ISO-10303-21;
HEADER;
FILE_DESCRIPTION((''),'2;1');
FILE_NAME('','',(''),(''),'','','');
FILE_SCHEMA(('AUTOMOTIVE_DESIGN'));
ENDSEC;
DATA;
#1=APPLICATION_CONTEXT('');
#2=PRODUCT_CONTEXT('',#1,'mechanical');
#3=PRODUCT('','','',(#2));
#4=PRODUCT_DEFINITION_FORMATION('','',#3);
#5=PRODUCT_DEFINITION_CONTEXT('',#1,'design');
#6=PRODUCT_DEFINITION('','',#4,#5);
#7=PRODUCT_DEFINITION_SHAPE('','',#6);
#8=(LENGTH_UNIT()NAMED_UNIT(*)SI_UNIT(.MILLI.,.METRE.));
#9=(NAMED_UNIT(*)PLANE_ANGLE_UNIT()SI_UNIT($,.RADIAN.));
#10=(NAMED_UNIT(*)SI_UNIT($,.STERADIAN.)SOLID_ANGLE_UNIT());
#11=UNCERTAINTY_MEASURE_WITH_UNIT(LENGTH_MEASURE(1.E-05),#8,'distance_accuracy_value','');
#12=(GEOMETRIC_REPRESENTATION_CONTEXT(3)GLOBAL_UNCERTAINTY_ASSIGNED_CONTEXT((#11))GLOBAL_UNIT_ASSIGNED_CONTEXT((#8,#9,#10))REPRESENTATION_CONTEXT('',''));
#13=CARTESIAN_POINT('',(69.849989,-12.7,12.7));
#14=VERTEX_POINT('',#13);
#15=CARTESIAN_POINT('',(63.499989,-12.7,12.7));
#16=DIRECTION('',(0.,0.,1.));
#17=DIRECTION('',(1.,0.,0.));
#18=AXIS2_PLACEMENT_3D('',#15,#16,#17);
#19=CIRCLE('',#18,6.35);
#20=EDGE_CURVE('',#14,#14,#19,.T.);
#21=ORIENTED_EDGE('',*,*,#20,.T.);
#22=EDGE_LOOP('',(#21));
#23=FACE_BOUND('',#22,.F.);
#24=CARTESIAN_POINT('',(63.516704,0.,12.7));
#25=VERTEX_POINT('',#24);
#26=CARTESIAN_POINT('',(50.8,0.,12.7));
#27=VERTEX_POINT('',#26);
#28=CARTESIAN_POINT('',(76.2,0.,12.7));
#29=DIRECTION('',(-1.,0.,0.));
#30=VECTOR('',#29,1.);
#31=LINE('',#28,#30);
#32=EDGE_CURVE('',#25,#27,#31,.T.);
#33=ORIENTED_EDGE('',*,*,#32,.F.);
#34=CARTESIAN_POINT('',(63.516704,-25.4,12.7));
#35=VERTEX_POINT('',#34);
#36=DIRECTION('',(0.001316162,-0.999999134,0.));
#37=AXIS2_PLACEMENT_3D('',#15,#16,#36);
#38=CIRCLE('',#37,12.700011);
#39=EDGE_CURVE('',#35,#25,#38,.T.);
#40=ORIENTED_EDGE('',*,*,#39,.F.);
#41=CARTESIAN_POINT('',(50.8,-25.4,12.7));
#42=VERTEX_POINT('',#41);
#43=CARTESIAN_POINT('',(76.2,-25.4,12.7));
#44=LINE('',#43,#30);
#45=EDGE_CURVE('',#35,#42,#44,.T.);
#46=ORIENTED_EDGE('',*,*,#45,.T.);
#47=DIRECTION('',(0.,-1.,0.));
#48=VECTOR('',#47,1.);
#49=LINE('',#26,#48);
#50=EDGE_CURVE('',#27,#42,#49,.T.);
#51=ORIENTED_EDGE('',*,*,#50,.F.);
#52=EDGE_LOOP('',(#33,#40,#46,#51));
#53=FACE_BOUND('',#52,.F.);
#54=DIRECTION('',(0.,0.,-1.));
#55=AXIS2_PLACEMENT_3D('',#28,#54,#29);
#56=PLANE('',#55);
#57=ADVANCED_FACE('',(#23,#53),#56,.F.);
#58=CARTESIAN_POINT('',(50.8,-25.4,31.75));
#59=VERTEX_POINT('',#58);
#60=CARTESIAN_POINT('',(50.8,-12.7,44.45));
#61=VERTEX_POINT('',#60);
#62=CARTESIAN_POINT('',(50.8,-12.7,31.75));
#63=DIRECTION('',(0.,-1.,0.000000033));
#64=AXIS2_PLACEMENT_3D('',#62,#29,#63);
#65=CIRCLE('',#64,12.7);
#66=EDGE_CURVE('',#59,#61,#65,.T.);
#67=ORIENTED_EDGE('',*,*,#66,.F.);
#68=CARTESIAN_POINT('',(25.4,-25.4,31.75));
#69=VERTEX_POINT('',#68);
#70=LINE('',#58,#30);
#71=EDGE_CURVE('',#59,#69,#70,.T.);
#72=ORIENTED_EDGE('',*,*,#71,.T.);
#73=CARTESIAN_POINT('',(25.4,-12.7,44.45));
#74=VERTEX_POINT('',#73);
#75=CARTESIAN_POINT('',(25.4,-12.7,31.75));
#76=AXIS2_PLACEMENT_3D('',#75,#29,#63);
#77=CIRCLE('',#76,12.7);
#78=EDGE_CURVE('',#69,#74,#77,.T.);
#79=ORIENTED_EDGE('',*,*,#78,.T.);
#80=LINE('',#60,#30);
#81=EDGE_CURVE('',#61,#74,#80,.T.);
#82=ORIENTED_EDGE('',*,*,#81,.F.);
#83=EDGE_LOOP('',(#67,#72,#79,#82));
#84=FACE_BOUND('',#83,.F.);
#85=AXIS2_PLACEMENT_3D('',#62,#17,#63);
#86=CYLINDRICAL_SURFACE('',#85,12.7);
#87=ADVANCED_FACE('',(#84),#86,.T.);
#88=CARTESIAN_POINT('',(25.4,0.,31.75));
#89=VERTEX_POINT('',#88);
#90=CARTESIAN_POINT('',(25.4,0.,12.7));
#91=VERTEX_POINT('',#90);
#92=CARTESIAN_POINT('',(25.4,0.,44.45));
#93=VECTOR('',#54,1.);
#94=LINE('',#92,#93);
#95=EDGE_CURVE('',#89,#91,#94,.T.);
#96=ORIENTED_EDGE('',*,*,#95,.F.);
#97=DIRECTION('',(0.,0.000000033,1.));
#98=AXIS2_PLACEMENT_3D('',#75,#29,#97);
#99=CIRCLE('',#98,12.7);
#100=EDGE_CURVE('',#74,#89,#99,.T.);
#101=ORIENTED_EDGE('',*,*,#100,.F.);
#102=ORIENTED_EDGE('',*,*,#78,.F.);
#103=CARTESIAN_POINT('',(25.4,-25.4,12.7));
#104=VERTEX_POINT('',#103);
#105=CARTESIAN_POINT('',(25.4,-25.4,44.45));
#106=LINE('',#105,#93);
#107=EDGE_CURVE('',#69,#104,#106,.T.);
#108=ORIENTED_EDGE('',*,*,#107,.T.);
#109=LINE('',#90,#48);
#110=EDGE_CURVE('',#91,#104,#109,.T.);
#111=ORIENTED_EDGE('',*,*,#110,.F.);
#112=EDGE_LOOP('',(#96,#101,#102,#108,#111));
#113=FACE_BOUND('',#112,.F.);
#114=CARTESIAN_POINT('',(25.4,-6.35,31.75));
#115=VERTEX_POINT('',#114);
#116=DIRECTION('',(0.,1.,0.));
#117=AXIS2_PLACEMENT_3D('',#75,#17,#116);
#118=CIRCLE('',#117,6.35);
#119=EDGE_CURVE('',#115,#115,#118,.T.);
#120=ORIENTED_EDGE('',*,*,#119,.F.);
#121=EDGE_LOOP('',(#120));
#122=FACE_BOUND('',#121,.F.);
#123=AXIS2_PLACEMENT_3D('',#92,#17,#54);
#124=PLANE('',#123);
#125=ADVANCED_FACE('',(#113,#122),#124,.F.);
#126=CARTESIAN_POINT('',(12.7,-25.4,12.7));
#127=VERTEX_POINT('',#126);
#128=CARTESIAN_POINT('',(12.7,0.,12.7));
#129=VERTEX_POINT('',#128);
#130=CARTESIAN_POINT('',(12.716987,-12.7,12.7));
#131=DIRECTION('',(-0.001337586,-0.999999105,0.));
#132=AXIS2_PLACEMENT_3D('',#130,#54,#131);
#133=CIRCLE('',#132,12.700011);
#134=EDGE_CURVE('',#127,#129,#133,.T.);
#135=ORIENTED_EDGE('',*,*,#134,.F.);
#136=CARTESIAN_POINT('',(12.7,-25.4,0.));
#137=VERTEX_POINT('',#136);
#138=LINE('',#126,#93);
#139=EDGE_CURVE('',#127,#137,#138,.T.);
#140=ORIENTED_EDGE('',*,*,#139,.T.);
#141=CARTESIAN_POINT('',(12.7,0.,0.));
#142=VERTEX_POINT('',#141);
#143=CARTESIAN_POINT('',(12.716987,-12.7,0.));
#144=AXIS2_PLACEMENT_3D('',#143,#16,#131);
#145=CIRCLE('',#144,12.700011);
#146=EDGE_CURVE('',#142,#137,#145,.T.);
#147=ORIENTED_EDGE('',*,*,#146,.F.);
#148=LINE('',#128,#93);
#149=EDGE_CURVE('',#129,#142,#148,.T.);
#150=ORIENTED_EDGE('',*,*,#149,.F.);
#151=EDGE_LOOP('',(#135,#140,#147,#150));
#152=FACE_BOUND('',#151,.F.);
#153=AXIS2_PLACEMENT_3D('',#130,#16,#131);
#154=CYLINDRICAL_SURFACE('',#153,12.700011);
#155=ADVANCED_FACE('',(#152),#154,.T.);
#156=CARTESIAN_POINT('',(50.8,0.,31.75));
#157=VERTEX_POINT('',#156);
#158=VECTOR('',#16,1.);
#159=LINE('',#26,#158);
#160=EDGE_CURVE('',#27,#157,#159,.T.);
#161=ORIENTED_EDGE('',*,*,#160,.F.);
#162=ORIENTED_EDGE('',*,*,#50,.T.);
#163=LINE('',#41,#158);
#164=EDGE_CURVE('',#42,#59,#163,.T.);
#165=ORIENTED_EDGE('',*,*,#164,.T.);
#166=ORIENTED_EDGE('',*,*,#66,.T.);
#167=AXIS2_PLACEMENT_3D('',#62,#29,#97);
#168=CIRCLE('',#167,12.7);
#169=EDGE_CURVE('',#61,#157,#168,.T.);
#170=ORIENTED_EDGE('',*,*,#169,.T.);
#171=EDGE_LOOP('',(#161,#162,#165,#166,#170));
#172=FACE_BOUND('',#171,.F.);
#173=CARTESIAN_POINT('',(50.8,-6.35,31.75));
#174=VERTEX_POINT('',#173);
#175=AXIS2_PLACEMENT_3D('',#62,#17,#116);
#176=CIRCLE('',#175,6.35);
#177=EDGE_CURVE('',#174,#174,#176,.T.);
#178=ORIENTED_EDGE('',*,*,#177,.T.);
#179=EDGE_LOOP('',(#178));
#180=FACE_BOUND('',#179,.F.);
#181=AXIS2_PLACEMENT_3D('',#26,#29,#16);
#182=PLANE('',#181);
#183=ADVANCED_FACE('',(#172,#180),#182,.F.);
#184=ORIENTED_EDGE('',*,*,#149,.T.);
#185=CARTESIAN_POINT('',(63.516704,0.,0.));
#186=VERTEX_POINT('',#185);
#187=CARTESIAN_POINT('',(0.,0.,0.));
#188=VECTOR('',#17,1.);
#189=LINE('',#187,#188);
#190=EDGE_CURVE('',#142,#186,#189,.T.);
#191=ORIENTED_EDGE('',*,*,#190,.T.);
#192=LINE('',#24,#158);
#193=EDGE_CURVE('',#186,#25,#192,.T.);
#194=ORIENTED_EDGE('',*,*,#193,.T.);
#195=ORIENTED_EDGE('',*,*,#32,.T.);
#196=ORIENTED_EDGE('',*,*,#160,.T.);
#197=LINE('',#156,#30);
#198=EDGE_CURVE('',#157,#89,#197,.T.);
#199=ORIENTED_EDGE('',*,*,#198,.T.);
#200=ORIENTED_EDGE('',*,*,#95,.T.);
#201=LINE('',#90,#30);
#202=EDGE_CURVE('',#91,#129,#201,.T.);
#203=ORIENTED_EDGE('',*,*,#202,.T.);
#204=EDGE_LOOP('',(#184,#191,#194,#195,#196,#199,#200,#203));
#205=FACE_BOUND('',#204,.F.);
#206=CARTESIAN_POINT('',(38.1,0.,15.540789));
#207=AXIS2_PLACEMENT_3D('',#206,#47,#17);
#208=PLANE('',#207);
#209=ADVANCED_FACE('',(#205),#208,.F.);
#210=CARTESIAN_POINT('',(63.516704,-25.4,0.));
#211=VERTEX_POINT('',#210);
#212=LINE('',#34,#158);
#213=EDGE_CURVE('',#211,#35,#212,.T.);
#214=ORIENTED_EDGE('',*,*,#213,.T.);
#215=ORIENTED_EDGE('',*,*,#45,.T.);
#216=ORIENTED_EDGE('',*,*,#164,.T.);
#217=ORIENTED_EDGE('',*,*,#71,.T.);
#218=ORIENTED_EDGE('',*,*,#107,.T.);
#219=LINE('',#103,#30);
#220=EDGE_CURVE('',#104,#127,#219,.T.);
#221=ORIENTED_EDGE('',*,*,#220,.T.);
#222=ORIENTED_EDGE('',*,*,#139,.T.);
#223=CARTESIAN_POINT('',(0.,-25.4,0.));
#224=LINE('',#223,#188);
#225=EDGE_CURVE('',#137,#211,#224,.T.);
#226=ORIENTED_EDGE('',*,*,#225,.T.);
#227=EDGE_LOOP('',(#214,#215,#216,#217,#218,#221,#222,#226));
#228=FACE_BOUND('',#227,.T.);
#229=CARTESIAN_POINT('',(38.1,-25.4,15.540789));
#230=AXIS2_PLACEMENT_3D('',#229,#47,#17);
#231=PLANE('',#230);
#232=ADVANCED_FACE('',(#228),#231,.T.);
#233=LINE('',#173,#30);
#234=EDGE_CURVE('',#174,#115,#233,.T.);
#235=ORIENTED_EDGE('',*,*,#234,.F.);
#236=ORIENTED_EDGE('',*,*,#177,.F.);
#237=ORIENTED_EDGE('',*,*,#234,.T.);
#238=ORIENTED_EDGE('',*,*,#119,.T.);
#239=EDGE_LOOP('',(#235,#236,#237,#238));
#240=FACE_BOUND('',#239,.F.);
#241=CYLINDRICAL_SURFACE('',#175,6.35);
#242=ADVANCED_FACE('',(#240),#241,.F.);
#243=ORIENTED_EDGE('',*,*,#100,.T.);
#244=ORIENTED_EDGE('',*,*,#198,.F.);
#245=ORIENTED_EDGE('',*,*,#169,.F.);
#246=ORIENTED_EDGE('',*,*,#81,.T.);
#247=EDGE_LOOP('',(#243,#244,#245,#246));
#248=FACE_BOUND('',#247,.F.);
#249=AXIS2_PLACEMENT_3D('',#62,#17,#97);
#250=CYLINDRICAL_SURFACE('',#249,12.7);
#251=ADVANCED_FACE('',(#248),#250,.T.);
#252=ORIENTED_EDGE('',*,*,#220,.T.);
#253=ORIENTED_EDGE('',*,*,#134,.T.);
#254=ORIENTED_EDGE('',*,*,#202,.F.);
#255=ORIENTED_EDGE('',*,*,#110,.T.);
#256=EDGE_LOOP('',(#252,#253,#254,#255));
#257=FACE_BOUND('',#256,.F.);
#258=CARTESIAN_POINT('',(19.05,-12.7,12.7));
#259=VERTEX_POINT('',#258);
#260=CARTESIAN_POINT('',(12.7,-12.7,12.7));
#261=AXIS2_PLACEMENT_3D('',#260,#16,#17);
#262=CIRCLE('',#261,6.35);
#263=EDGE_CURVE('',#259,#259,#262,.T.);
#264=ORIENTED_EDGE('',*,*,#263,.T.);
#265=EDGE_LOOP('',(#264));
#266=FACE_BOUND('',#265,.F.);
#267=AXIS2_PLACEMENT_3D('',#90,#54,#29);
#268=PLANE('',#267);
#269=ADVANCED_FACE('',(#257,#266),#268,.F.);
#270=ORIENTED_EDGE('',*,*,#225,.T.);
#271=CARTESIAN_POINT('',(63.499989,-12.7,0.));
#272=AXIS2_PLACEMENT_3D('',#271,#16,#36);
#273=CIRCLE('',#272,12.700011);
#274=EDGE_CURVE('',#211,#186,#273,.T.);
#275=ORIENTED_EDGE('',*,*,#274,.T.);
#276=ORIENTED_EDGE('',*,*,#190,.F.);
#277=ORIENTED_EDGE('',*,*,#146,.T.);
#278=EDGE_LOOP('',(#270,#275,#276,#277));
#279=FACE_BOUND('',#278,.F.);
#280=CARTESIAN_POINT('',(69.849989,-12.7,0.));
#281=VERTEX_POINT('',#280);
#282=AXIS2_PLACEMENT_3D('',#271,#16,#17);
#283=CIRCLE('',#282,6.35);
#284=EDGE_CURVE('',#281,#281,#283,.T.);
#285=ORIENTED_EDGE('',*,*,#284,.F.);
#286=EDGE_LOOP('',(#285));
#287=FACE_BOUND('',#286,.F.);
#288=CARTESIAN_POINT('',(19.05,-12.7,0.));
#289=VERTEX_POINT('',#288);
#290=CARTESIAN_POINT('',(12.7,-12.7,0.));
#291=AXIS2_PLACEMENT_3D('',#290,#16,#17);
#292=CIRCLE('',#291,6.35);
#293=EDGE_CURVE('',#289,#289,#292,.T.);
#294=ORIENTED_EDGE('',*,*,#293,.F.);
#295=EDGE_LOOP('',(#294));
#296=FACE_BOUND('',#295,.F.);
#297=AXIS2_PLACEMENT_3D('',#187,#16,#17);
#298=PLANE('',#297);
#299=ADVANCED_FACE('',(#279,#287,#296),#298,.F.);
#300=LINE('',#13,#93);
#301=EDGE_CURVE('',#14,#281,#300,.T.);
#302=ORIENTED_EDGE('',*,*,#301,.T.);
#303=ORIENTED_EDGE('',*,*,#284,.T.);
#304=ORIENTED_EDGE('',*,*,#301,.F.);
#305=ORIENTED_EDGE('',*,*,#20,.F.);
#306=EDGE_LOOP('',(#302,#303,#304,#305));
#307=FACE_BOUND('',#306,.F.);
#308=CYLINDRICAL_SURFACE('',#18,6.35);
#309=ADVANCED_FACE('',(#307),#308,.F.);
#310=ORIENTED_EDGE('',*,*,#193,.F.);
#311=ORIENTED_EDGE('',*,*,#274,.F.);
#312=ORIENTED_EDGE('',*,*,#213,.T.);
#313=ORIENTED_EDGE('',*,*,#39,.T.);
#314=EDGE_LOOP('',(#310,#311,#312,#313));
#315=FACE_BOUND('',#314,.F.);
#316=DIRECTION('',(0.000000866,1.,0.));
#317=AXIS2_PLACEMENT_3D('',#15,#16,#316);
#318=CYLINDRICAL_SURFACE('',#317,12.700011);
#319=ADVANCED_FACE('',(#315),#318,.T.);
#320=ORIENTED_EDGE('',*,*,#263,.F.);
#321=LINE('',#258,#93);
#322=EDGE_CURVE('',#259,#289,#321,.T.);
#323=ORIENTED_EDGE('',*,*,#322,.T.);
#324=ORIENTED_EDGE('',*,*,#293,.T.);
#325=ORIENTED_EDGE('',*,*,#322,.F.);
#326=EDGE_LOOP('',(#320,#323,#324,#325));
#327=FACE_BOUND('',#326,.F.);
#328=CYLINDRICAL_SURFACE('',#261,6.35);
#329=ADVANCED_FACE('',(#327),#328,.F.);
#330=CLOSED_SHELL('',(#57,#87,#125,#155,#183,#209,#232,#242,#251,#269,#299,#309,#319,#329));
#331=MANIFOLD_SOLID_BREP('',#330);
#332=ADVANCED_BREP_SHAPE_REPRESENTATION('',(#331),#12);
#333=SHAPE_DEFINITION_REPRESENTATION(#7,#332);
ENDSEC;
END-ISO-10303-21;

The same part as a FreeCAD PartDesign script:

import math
import FreeCAD as App
import Part
import Sketcher

V = App.Vector
Q = App.Units.Quantity

doc = App.newDocument("Part")
params = doc.addObject("Spreadsheet::Sheet", "Params")
for row, (alias, value) in enumerate([
    ("sketch1_width", "3 in"),
    ("sketch1_height", "0.5 in"),
    ("sketch1_height2", "1.25 in"),
    ("pad1_length", "1 in"),
    ("sketch2_diameter", "0.5 in"),
    ("sketch2_radius", "0.5 in"),
    ("pocket1_length", "1 in"),
    ("sketch3_diameter", "0.5 in"),
    ("sketch3_height", "1 in"),
    ("sketch3_width", "0.5 in"),
    ("pocket2_length", "1 in"),
], start=1):
    params.set(f"A{row}", alias)
    params.set(f"B{row}", "=" + value)
    params.setAlias(f"B{row}", alias)

body = doc.addObject("PartDesign::Body", "Body")

# Sketch on XZ plane
sketch1 = doc.addObject("Sketcher::SketchObject", "Sketch")
body.addObject(sketch1)
sketch1.AttachmentSupport = (doc.XZ_Plane, [""])
sketch1.MapMode = "FlatFace"
sketch1.addGeometry([
    Part.LineSegment(V(0, 12.7, 0), V(0, 0, 0)),  # 0
    Part.LineSegment(V(0, 0, 0), V(76.2, 0, 0)),  # 1
    Part.LineSegment(V(76.2, 0, 0), V(76.2, 12.7, 0)),  # 2
    Part.LineSegment(V(76.2, 12.7, 0), V(50.8, 12.7, 0)),  # 3
    Part.LineSegment(V(50.8, 12.7, 0), V(50.8, 44.45, 0)),  # 4
    Part.LineSegment(V(50.8, 44.45, 0), V(25.4, 44.45, 0)),  # 5
    Part.LineSegment(V(25.4, 44.45, 0), V(25.4, 12.7, 0)),  # 6
    Part.LineSegment(V(25.4, 12.7, 0), V(0, 12.7, 0)),  # 7
], False)
sketch1.addConstraint([
    Sketcher.Constraint("Coincident", 0, 2, 1, 1),
    Sketcher.Constraint("Coincident", 1, 2, 2, 1),
    Sketcher.Constraint("Coincident", 2, 2, 3, 1),
    Sketcher.Constraint("Coincident", 3, 2, 4, 1),
    Sketcher.Constraint("Coincident", 4, 2, 5, 1),
    Sketcher.Constraint("Coincident", 5, 2, 6, 1),
    Sketcher.Constraint("Coincident", 6, 2, 7, 1),
    Sketcher.Constraint("Coincident", 7, 2, 0, 1),
    Sketcher.Constraint("Vertical", 0),
    Sketcher.Constraint("Horizontal", 1),
    Sketcher.Constraint("Vertical", 2),
    Sketcher.Constraint("Horizontal", 3),
    Sketcher.Constraint("Vertical", 4),
    Sketcher.Constraint("Horizontal", 5),
    Sketcher.Constraint("Vertical", 6),
    Sketcher.Constraint("Horizontal", 7),
    Sketcher.Constraint("Coincident", 0, 2, -1, 1),
    Sketcher.Constraint("Horizontal", 3, 2, 6, 2),
    Sketcher.Constraint("Equal", 3, 5),
    Sketcher.Constraint("Equal", 5, 7),
    Sketcher.Constraint("DistanceX", 1, 1, 1, 2, Q("3 in")),
    Sketcher.Constraint("DistanceY", 0, 2, 0, 1, Q("0.5 in")),
    Sketcher.Constraint("DistanceY", 4, 1, 4, 2, Q("1.25 in")),
])
sketch1.setExpression("Constraints[20]", "Params.sketch1_width")
sketch1.setExpression("Constraints[21]", "Params.sketch1_height")
sketch1.setExpression("Constraints[22]", "Params.sketch1_height2")
pad1 = doc.addObject("PartDesign::Pad", "Pad")
body.addObject(pad1)
pad1.Profile = sketch1
pad1.setExpression("Length", "Params.pad1_length")

# Sketch on YZ plane
sketch2 = doc.addObject("Sketcher::SketchObject", "Sketch001")
body.addObject(sketch2)
sketch2.AttachmentSupport = (doc.YZ_Plane, [""])
sketch2.MapMode = "FlatFace"
sketch2.AttachmentOffset = App.Placement(V(0, 0, 2 * 25.4), App.Rotation())
sketch2.addGeometry([
    Part.ArcOfCircle(Part.Circle(V(-12.7, 31.75, 0), V(0, 0, 1), 12.7), math.radians(90.000002), math.radians(179.999998)),  # 0
    Part.LineSegment(V(-12.7, 44.45, 0), V(-25.4, 44.45, 0)),  # 1
    Part.LineSegment(V(-25.4, 44.45, 0), V(-25.4, 31.75, 0)),  # 2
    Part.ArcOfCircle(Part.Circle(V(-12.7, 31.75, 0), V(0, 0, 1), 12.7), math.radians(0.000002), math.radians(89.999998)),  # 3
    Part.LineSegment(V(0, 31.75, 0), V(0, 44.45, 0)),  # 4
    Part.LineSegment(V(0, 44.45, 0), V(-12.7, 44.45, 0)),  # 5
    Part.Circle(V(-12.7, 31.75, 0), V(0, 0, 1), 6.35),  # 6
], False)
sketch2.addConstraint([
    Sketcher.Constraint("Tangent", 0, 1, 1, 1),
    Sketcher.Constraint("Coincident", 1, 2, 2, 1),
    Sketcher.Constraint("Tangent", 2, 2, 0, 2),
    Sketcher.Constraint("Tangent", 3, 1, 4, 1),
    Sketcher.Constraint("Coincident", 4, 2, 5, 1),
    Sketcher.Constraint("Tangent", 5, 2, 3, 2),
    Sketcher.Constraint("Horizontal", 1),
    Sketcher.Constraint("Vertical", 2),
    Sketcher.Constraint("Vertical", 4),
    Sketcher.Constraint("Horizontal", 5),
    Sketcher.Constraint("Coincident", 3, 3, 0, 3),
    Sketcher.Constraint("Coincident", 6, 3, 0, 3),
    Sketcher.Constraint("Equal", 0, 3),
    Sketcher.Constraint("PointOnObject", 3, 1, -2),
    Sketcher.Constraint("Diameter", 6, Q("0.5 in")),
    Sketcher.Constraint("Radius", 0, Q("0.5 in")),
    Sketcher.Constraint("DistanceY", -1, 1, 0, 3, Q("1.25 in")),
])
sketch2.setExpression("Constraints[14]", "Params.sketch2_diameter")
sketch2.setExpression("Constraints[15]", "Params.sketch2_radius")
pocket1 = doc.addObject("PartDesign::Pocket", "Pocket")
body.addObject(pocket1)
pocket1.Profile = sketch2
pocket1.setExpression("Length", "Params.pocket1_length")

# Sketch on XY plane
sketch3 = doc.addObject("Sketcher::SketchObject", "Sketch002")
body.addObject(sketch3)
sketch3.AttachmentSupport = (doc.XY_Plane, [""])
sketch3.MapMode = "FlatFace"
sketch3.AttachmentOffset = App.Placement(V(0, 0, 0.5 * 25.4), App.Rotation())
sketch3.addGeometry([
    Part.Circle(V(63.499989, -12.7, 0), V(0, 0, 1), 6.35),  # 0
    Part.Circle(V(12.7, -12.7, 0), V(0, 0, 1), 6.35),  # 1
    Part.ArcOfCircle(Part.Circle(V(63.499989, -12.7, 0), V(0, 0, 1), 12.700011), math.radians(-89.99995), math.radians(89.99995)),  # 2
    Part.LineSegment(V(63.5, -25.400011, 0), V(94.457269, -25.400011, 0)),  # 3
    Part.LineSegment(V(94.457269, -25.400011, 0), V(94.457269, 0, 0)),  # 4
    Part.LineSegment(V(94.457269, 0, 0), V(63.5, 0.000011, 0)),  # 5
    Part.ArcOfCircle(Part.Circle(V(12.716987, -12.7, 0), V(0, 0, 1), 12.700011), math.radians(90.076638), math.radians(269.923362)),  # 6
    Part.LineSegment(V(12.7, 0, 0), V(0, 0, 0)),  # 7
    Part.LineSegment(V(0, 0, 0), V(0, -25.4, 0)),  # 8
    Part.LineSegment(V(0, -25.4, 0), V(12.7, -25.4, 0)),  # 9
], False)
sketch3.addConstraint([
    Sketcher.Constraint("Tangent", 2, 1, 3, 1),
    Sketcher.Constraint("Coincident", 3, 2, 4, 1),
    Sketcher.Constraint("Coincident", 4, 2, 5, 1),
    Sketcher.Constraint("Tangent", 5, 2, 2, 2),
    Sketcher.Constraint("Coincident", 6, 1, 7, 1),
    Sketcher.Constraint("Coincident", 7, 2, 8, 1),
    Sketcher.Constraint("Coincident", 8, 2, 9, 1),
    Sketcher.Constraint("Coincident", 9, 2, 6, 2),
    Sketcher.Constraint("Horizontal", 3),
    Sketcher.Constraint("Vertical", 4),
    Sketcher.Constraint("Horizontal", 7),
    Sketcher.Constraint("Vertical", 8),
    Sketcher.Constraint("Horizontal", 9),
    Sketcher.Constraint("Coincident", 7, 2, -1, 1),
    Sketcher.Constraint("Coincident", 2, 3, 0, 3),
    Sketcher.Constraint("Equal", 0, 1),
    Sketcher.Constraint("Equal", 2, 6),
    Sketcher.Constraint("PointOnObject", 4, 2, -1),
    Sketcher.Constraint("Horizontal", 0, 3, 1, 3),
    Sketcher.Constraint("Horizontal", 2, 3, 6, 3),
    Sketcher.Constraint("Vertical", 1, 3, 6, 1),
    Sketcher.Constraint("Vertical", 6, 1, 9, 2),
    Sketcher.Constraint("Diameter", 0, Q("0.5 in")),
    Sketcher.Constraint("DistanceY", 8, 2, 8, 1, Q("1 in")),
    Sketcher.Constraint("DistanceX", 7, 2, 7, 1, Q("0.5 in")),
    Sketcher.Constraint("DistanceX", 1, 3, 2, 1, Q("2 in")),
    Sketcher.Constraint("DistanceX", 3, 1, 3, 2, 30.957269),
    Sketcher.Constraint("DistanceX", 6, 3, 0, 3, 50.783002),
])
sketch3.setExpression("Constraints[22]", "Params.sketch3_diameter")
sketch3.setExpression("Constraints[23]", "Params.sketch3_height")
sketch3.setExpression("Constraints[24]", "Params.sketch3_width")
pocket2 = doc.addObject("PartDesign::Pocket", "Pocket001")
body.addObject(pocket2)
pocket2.Profile = sketch3
pocket2.setExpression("Length", "Params.pocket2_length")

doc.recompute()
